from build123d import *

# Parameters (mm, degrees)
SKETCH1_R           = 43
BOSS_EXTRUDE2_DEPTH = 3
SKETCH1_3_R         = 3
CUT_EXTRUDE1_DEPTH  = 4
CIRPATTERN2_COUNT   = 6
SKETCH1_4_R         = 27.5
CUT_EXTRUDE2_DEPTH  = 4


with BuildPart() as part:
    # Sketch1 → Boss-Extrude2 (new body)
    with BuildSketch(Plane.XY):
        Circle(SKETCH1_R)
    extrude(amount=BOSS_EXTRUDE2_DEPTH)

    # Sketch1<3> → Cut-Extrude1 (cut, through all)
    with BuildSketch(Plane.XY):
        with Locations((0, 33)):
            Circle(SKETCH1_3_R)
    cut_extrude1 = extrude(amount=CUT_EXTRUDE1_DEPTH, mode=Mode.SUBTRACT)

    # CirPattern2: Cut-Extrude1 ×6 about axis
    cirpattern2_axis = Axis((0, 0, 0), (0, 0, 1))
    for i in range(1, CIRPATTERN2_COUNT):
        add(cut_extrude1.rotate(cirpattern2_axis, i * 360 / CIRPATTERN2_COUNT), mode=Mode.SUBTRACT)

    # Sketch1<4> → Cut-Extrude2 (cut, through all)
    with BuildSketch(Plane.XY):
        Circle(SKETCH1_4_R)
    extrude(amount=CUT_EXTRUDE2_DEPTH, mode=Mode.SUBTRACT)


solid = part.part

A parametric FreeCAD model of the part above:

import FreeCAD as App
import Part
import Sketcher

V = App.Vector

doc = App.newDocument("Part")
body = doc.addObject("PartDesign::Body", "Body")

# Sketch on XY plane
sketch1 = body.newObject("Sketcher::SketchObject", "Sketch")
sketch1.AttachmentSupport = (doc.getObject("XY_Plane"), [""])
sketch1.MapMode = "FlatFace"
sketch1.addGeometry(Part.Circle(V(0, 0, 0), V(0, 0, 1), 43), False)
sketch1.addConstraint([
    Sketcher.Constraint("Coincident", 0, 3, -1, 1),
    Sketcher.Constraint("Diameter", 0, 86.0),
])
pad1 = body.newObject("PartDesign::Pad", "Pad")
pad1.Profile = sketch1
pad1.Length = 3

# Sketch on XY plane
sketch2 = body.newObject("Sketcher::SketchObject", "Sketch001")
sketch2.AttachmentSupport = (doc.getObject("XY_Plane"), [""])
sketch2.MapMode = "FlatFace"
sketch2.addGeometry(Part.Circle(V(0, 33, 0), V(0, 0, 1), 3), False)
sketch2.addConstraint([
    Sketcher.Constraint("PointOnObject", 0, 3, -2),
    Sketcher.Constraint("Diameter", 0, 6.0),
    Sketcher.Constraint("DistanceY", -1, 1, 0, 3, 33.0),
])
pocket1 = body.newObject("PartDesign::Pocket", "Pocket")
pocket1.Profile = sketch2
pocket1.Type = "ThroughAll"
pocket1.Reversed = True
doc.recompute()

polarpattern = body.newObject("PartDesign::PolarPattern", "PolarPattern")
polarpattern.Originals = [pocket1]
polarpattern.Axis = (doc.getObject("Z_Axis"), [""])
polarpattern.Angle = 360
polarpattern.Occurrences = 6
body.Tip = polarpattern

# Sketch on XY plane
sketch3 = body.newObject("Sketcher::SketchObject", "Sketch002")
sketch3.AttachmentSupport = (doc.getObject("XY_Plane"), [""])
sketch3.MapMode = "FlatFace"
sketch3.addGeometry(Part.Circle(V(0, 0, 0), V(0, 0, 1), 27.5), False)
sketch3.addConstraint([
    Sketcher.Constraint("Coincident", 0, 3, -1, 1),
    Sketcher.Constraint("Diameter", 0, 55.0),
])
pocket2 = body.newObject("PartDesign::Pocket", "Pocket001")
pocket2.Profile = sketch3
pocket2.Type = "ThroughAll"
pocket2.Reversed = True

doc.recompute()
